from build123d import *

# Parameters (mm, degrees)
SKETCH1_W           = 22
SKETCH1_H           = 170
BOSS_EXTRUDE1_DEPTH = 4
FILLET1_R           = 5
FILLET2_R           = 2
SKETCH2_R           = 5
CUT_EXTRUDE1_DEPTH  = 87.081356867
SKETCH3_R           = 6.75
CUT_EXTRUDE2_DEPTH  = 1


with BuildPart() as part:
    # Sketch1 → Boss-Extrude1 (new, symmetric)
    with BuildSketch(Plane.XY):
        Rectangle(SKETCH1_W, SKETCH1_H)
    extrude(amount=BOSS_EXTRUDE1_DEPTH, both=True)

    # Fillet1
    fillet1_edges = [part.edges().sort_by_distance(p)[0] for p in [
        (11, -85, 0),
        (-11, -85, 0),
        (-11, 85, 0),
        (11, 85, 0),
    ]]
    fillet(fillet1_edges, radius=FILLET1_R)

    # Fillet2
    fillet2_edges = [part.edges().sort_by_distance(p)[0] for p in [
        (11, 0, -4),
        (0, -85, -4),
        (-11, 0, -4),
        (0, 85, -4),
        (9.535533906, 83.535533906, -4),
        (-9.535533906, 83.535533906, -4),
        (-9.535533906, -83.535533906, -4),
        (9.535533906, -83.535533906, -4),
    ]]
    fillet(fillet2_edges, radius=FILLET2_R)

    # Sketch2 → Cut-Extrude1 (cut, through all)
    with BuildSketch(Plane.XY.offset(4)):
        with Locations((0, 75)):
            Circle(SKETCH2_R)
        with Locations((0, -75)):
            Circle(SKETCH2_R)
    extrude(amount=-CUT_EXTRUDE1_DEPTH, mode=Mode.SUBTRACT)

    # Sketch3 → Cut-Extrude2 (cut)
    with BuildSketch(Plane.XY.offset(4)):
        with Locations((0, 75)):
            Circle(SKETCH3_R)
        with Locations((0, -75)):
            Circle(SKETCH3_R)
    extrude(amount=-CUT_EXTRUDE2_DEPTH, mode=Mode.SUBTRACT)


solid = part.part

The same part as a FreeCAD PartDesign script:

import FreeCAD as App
import Part
import Sketcher
from FreeCAD import Vector


def edges_at(feature, points):
    """Names of the edges that pass closest to the given points."""
    edges = feature.Shape.Edges
    near = lambda p: min(range(len(edges)), key=lambda i: edges[i].distToShape(Part.Vertex(*p))[0])
    return sorted({f"Edge{near(p) + 1}" for p in points})


def add_polygon(sketch, points):
    """Adds a closed chain of lines whose ends are joined by coincident constraints."""
    first, n = sketch.GeometryCount, len(points)
    for a, b in zip(points, points[1:] + points[:1]):
        sketch.addGeometry(Part.LineSegment(App.Vector(*a, 0), App.Vector(*b, 0)), False)
    for i in range(n):
        sketch.addConstraint(Sketcher.Constraint("Coincident", first + i, 2, first + (i + 1) % n, 1))

doc = App.newDocument("Part")
body = doc.addObject("PartDesign::Body", "Body")

sketch1 = body.newObject("Sketcher::SketchObject", "Sketch")
sketch1.AttachmentSupport = (doc.getObject("XY_Plane"), [""])
sketch1.MapMode = "FlatFace"
add_polygon(sketch1, [(-11, 85), (-11, -85), (11, -85), (11, 85)])
sketch1.addConstraint([
    Sketcher.Constraint("Vertical", 0),
    Sketcher.Constraint("Horizontal", 1),
    Sketcher.Constraint("Vertical", 2),
    Sketcher.Constraint("Horizontal", 3),
    Sketcher.Constraint("Symmetric", 0, 2, 2, 2, -1, 1),
    Sketcher.Constraint("DistanceX", 1, 1, 1, 2, 22.0),
    Sketcher.Constraint("DistanceY", 0, 2, 0, 1, 170.0),
])
pad1 = body.newObject("PartDesign::Pad", "Pad")
pad1.Profile = sketch1
pad1.Length = 8
pad1.Midplane = True
doc.recompute()

fillet = body.newObject("PartDesign::Fillet", "Fillet")
fillet.Base = (pad1, edges_at(pad1, [
    (11, -85, 0),
    (-11, -85, 0),
    (-11, 85, 0),
    (11, 85, 0),
]))
fillet.Radius = 5
doc.recompute()

fillet2 = body.newObject("PartDesign::Fillet", "Fillet001")
fillet2.Base = (fillet, edges_at(fillet, [
    (11, 0, -4),
    (0, -85, -4),
    (-11, 0, -4),
    (0, 85, -4),
    (9.536, 83.536, -4),
    (-9.536, 83.536, -4),
    (-9.536, -83.536, -4),
    (9.536, -83.536, -4),
]))
fillet2.Radius = 2

sketch2 = body.newObject("Sketcher::SketchObject", "Sketch001")
sketch2.AttachmentSupport = (doc.getObject("XY_Plane"), [""])
sketch2.MapMode = "FlatFace"
sketch2.AttachmentOffset = App.Placement(Vector(0, 0, 4), App.Rotation())
sketch2.addGeometry([
    Part.Circle(Vector(0, 75, 0), Vector(0, 0, 1), 5),
    Part.Circle(Vector(0, -75, 0), Vector(0, 0, 1), 5),
], False)
sketch2.addConstraint([
    Sketcher.Constraint("Equal", 0, 1),
    Sketcher.Constraint("Symmetric", 0, 3, 1, 3, -1, 1),
    Sketcher.Constraint("PointOnObject", 0, 3, -2),
    Sketcher.Constraint("Diameter", 0, 10.0),
    Sketcher.Constraint("DistanceY", -1, 1, 0, 3, 75.0),
])
pocket1 = body.newObject("PartDesign::Pocket", "Pocket")
pocket1.Profile = sketch2
pocket1.Type = "ThroughAll"

sketch3 = body.newObject("Sketcher::SketchObject", "Sketch002")
sketch3.AttachmentSupport = (doc.getObject("XY_Plane"), [""])
sketch3.MapMode = "FlatFace"
sketch3.AttachmentOffset = App.Placement(Vector(0, 0, 4), App.Rotation())
sketch3.addGeometry([
    Part.Circle(Vector(0, 75, 0), Vector(0, 0, 1), 7),
    Part.Circle(Vector(0, -75, 0), Vector(0, 0, 1), 7),
], False)
sketch3.addConstraint([
    Sketcher.Constraint("Equal", 0, 1),
    Sketcher.Constraint("Symmetric", 0, 3, 1, 3, -1, 1),
    Sketcher.Constraint("PointOnObject", 0, 3, -2),
    Sketcher.Constraint("Diameter", 0, 13.5),
    Sketcher.Constraint("DistanceY", -1, 1, 0, 3, 75.0),
])
pocket2 = body.newObject("PartDesign::Pocket", "Pocket001")
pocket2.Profile = sketch3
pocket2.Length = 1

doc.recompute()
